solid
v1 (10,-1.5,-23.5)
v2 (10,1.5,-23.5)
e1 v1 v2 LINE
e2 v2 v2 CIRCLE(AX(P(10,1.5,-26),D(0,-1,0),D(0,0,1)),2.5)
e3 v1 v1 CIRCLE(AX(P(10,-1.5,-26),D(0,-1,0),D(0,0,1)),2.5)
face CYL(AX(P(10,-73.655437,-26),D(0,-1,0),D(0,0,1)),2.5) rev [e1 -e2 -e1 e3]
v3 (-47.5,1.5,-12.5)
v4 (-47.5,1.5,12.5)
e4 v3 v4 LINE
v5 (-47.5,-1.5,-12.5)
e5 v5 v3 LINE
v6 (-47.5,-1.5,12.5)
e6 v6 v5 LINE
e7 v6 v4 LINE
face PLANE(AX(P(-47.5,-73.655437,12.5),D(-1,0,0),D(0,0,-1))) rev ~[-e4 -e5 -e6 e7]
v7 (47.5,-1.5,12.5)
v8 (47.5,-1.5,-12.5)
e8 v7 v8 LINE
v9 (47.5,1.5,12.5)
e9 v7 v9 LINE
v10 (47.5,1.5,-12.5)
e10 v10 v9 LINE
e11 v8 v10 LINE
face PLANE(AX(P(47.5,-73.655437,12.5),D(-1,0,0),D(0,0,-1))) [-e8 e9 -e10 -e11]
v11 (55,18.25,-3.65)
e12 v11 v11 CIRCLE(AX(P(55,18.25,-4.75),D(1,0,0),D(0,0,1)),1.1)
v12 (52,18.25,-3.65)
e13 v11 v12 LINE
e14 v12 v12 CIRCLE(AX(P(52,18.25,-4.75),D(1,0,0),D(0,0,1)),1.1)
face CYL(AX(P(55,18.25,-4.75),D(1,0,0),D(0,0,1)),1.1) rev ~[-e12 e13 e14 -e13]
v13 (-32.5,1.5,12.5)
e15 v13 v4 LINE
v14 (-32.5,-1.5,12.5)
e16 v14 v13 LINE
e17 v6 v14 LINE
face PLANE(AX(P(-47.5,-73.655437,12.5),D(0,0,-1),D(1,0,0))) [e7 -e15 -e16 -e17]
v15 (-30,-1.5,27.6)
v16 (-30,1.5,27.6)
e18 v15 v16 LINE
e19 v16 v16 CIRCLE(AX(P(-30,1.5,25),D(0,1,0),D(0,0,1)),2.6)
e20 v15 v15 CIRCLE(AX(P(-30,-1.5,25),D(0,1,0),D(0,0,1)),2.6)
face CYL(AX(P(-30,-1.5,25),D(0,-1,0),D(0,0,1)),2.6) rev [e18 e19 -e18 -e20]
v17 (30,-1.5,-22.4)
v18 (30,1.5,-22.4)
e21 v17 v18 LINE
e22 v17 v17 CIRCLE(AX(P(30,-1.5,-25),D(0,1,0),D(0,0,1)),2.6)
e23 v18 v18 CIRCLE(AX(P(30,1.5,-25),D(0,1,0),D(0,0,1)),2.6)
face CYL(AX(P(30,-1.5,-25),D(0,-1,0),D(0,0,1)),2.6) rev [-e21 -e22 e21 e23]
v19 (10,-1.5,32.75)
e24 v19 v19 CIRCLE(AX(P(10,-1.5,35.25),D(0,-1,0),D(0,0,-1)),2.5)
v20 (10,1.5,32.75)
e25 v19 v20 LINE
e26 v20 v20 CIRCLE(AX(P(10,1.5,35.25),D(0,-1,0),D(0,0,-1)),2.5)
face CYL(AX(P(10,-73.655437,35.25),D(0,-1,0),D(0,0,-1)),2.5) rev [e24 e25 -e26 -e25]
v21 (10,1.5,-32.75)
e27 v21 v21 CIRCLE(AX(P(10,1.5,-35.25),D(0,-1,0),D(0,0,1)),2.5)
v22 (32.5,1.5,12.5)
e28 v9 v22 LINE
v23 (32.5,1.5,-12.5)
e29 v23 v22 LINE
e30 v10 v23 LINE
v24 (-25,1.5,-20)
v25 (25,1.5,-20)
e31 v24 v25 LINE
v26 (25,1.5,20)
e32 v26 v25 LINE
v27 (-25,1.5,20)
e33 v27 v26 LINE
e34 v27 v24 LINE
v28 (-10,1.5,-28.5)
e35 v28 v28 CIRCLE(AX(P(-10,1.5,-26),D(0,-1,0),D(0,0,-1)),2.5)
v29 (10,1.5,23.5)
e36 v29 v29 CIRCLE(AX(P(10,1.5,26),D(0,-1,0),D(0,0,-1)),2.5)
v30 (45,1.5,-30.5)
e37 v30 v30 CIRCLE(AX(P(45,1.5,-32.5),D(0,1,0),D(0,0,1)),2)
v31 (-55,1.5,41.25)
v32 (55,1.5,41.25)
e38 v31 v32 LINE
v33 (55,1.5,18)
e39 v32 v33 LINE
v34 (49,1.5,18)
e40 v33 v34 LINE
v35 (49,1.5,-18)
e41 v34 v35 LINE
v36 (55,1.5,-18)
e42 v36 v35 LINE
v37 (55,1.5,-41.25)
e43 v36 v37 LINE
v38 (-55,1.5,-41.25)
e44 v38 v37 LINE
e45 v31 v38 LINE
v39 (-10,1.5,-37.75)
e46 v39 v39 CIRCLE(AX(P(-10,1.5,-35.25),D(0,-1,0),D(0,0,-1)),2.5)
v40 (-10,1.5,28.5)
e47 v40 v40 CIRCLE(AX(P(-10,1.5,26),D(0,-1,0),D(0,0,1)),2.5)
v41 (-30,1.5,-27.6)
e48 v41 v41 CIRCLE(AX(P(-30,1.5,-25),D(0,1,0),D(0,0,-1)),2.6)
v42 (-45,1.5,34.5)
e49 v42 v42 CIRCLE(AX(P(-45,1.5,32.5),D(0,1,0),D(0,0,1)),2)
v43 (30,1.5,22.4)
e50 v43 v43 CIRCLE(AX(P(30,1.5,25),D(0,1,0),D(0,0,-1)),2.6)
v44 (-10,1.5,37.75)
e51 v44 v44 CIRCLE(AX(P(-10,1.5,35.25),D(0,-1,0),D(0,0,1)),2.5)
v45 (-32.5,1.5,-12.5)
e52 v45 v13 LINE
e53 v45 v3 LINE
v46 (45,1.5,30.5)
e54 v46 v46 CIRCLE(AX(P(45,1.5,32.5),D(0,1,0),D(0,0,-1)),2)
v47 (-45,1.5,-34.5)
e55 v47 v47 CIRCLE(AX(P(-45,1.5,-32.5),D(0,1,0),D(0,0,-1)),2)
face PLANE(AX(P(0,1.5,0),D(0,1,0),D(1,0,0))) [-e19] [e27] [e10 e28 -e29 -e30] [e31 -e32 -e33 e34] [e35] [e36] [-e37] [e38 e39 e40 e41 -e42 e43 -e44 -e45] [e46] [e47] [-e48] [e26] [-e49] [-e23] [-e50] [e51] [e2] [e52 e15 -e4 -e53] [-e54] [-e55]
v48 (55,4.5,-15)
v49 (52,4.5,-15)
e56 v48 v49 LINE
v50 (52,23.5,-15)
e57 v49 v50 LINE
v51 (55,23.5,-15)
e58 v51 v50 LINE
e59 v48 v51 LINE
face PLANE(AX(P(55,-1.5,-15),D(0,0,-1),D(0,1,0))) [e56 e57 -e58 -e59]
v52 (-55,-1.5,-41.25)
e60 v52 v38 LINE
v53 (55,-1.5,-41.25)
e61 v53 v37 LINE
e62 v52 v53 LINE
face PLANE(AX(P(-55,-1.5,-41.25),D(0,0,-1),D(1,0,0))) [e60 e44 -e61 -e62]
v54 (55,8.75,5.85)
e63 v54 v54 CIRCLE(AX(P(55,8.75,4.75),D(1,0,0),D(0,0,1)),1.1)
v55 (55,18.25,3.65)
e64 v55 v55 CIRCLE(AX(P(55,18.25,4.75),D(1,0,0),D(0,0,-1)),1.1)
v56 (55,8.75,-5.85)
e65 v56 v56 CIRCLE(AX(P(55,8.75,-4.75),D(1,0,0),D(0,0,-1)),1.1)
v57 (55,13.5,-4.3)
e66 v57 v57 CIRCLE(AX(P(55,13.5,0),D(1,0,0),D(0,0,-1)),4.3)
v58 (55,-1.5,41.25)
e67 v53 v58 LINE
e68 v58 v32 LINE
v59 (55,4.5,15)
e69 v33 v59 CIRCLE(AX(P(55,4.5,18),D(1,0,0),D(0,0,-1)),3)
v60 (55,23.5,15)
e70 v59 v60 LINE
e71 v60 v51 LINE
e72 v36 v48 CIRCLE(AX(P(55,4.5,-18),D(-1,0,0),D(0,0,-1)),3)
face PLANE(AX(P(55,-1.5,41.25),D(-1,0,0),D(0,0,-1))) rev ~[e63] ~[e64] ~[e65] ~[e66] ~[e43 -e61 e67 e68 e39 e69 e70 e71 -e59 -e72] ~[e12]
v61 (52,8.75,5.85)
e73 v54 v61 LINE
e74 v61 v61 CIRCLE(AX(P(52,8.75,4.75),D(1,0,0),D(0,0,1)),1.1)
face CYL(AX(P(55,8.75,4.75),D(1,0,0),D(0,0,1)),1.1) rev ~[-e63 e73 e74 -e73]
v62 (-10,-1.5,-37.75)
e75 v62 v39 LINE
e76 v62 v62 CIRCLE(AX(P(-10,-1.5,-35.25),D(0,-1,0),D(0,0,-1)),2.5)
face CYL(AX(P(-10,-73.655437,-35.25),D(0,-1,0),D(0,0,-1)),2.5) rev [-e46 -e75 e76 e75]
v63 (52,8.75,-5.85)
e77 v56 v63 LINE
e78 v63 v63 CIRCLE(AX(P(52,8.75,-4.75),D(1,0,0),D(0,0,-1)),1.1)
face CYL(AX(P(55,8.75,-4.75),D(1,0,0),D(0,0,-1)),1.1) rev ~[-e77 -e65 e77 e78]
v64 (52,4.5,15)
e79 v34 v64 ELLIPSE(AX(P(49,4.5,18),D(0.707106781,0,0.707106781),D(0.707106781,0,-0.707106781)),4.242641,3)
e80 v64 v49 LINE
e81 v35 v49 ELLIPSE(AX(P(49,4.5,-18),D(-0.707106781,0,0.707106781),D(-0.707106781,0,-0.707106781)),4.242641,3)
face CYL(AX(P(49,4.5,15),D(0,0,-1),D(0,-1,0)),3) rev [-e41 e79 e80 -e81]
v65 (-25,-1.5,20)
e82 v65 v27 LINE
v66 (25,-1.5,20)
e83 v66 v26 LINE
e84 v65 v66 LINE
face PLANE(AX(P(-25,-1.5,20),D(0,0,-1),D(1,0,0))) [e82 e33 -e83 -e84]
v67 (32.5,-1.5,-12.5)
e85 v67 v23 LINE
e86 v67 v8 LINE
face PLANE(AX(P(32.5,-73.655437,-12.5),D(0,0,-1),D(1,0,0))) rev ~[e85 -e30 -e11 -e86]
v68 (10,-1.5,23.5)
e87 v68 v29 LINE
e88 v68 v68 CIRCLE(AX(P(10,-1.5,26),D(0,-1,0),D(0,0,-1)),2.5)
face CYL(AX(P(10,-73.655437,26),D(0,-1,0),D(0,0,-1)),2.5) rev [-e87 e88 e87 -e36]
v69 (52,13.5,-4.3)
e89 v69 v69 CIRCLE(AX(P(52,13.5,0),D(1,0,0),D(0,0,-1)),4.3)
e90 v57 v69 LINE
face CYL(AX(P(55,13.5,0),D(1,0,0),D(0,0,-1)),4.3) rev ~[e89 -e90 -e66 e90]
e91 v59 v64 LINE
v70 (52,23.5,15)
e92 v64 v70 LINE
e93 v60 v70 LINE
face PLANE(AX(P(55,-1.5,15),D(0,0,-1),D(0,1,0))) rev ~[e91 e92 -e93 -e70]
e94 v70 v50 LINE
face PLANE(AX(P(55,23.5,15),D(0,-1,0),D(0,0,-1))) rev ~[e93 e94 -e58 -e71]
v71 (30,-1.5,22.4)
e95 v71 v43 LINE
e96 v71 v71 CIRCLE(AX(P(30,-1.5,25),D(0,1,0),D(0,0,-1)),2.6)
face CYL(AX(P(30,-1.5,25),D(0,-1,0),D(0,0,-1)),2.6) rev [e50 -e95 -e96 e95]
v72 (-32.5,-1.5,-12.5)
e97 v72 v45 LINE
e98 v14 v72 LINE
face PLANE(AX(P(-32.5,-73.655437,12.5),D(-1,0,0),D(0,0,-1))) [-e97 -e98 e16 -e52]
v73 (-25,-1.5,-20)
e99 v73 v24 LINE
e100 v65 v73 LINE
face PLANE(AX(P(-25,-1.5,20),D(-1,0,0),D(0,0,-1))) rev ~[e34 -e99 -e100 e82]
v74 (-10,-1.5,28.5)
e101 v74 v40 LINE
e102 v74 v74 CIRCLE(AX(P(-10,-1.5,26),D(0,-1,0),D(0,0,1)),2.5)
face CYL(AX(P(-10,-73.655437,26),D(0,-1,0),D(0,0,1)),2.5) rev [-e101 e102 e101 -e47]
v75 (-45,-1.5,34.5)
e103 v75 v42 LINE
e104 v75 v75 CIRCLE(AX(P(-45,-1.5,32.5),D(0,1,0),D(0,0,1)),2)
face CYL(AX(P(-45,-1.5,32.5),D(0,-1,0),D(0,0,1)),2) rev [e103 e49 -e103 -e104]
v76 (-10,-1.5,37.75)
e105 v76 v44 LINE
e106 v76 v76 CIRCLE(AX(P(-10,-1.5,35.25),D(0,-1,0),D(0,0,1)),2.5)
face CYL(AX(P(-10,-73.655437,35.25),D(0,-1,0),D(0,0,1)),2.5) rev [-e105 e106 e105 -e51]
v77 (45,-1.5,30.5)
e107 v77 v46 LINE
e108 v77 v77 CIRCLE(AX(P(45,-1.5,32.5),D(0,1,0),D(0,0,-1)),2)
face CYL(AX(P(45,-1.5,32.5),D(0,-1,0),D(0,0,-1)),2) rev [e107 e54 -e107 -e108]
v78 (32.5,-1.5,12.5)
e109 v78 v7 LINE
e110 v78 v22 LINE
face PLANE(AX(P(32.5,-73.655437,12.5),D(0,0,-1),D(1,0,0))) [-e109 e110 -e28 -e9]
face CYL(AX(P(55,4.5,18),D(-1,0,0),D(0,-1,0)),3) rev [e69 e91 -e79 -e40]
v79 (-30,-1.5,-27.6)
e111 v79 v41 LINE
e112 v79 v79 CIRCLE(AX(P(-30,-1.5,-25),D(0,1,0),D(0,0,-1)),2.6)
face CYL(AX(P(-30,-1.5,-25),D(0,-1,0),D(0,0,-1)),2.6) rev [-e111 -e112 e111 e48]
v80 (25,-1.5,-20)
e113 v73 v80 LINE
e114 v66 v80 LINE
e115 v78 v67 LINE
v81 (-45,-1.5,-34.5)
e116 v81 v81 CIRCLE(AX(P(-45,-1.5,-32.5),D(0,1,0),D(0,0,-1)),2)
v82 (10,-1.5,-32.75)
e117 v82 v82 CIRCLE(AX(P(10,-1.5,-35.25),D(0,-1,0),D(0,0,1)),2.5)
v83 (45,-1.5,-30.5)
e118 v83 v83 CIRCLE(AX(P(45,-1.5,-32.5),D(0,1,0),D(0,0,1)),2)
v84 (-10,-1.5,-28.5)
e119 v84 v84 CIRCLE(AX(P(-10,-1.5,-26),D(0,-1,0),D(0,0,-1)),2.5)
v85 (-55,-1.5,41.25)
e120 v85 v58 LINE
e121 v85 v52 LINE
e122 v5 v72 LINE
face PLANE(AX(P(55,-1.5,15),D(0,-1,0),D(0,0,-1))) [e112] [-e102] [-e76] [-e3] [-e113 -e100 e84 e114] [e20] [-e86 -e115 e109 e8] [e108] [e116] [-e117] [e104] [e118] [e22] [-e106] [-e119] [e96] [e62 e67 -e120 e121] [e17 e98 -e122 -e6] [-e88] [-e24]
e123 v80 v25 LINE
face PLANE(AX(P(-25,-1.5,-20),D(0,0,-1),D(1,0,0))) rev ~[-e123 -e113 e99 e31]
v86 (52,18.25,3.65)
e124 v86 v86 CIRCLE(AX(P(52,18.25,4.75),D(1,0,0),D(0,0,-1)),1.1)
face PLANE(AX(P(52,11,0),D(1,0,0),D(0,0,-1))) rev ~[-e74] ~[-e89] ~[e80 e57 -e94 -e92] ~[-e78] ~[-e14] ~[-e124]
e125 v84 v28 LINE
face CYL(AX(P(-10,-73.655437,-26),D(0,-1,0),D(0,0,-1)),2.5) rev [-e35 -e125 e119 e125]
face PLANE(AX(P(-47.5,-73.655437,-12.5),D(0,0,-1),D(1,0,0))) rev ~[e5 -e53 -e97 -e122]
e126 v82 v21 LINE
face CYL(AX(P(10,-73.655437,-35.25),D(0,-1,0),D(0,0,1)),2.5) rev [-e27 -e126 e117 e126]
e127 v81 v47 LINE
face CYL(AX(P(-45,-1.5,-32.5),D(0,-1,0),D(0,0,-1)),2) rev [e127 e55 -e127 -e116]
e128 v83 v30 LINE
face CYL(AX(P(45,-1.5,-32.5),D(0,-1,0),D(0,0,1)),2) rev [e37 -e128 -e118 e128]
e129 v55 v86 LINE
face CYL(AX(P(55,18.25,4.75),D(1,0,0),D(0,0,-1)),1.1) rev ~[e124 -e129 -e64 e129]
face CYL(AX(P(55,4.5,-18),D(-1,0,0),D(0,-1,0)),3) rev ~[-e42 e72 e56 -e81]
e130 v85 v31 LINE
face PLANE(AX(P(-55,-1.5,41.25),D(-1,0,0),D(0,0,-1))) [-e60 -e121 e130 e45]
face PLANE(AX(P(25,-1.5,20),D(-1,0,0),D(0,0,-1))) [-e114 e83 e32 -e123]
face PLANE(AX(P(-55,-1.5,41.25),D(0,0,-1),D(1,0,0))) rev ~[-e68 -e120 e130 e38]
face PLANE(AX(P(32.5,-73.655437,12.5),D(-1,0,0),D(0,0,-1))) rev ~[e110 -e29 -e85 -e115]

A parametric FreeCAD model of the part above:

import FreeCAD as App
import Part
import Sketcher
Q = App.Units.Quantity


def edges_at(feature, points):
    """Names of the edges that pass closest to the given points."""
    edges = feature.Shape.Edges
    near = lambda p: min(range(len(edges)), key=lambda i: edges[i].distToShape(Part.Vertex(*p))[0])
    return sorted({f"Edge{near(p) + 1}" for p in points})


def add_polygon(sketch, points):
    """Adds a closed chain of lines whose ends are joined by coincident constraints."""
    first, n = sketch.GeometryCount, len(points)
    for a, b in zip(points, points[1:] + points[:1]):
        sketch.addGeometry(Part.LineSegment(App.Vector(*a, 0), App.Vector(*b, 0)), False)
    for i in range(n):
        sketch.addConstraint(Sketcher.Constraint("Coincident", first + i, 2, first + (i + 1) % n, 1))

doc = App.newDocument("Part")
body = doc.addObject("PartDesign::Body", "Body")

# Sketch on XZ plane
sketch1 = body.newObject("Sketcher::SketchObject", "Sketch")
sketch1.AttachmentSupport = (doc.getObject("XZ_Plane"), [""])
sketch1.MapMode = "FlatFace"
add_polygon(sketch1, [(-55, -41.2), (-55, 41.2), (55, 41.2), (55, -41.2)])  # lines 0-3
sketch1.addGeometry(Part.Circle(App.Vector(-45, 32.5, 0), App.Vector(0, 0, 1), 2), False)  # 4
sketch1.addGeometry(Part.Circle(App.Vector(-30, 25, 0), App.Vector(0, 0, 1), 2.6), False)  # 5
sketch1.addGeometry(Part.Circle(App.Vector(45, 32.5, 0), App.Vector(0, 0, 1), 2), False)  # 6
sketch1.addGeometry(Part.Circle(App.Vector(30, 25, 0), App.Vector(0, 0, 1), 2.6), False)  # 7
sketch1.addGeometry(Part.Circle(App.Vector(-30, -25, 0), App.Vector(0, 0, 1), 2.6), False)  # 8
sketch1.addGeometry(Part.Circle(App.Vector(-45, -32.5, 0), App.Vector(0, 0, 1), 2), False)  # 9
add_polygon(sketch1, [(25, 20), (-25, 20), (-25, -20), (25, -20)])  # lines 10-13
sketch1.addGeometry(Part.Circle(App.Vector(30, -25, 0), App.Vector(0, 0, 1), 2.6), False)  # 14
sketch1.addGeometry(Part.Circle(App.Vector(45, -32.5, 0), App.Vector(0, 0, 1), 2), False)  # 15
sketch1.addConstraint(Sketcher.Constraint("Vertical", 0))
sketch1.addConstraint(Sketcher.Constraint("Horizontal", 1))
sketch1.addConstraint(Sketcher.Constraint("Vertical", 2))
sketch1.addConstraint(Sketcher.Constraint("Horizontal", 3))
sketch1.addConstraint(Sketcher.Constraint("Horizontal", 10))
sketch1.addConstraint(Sketcher.Constraint("Vertical", 11))
sketch1.addConstraint(Sketcher.Constraint("Horizontal", 12))
sketch1.addConstraint(Sketcher.Constraint("Vertical", 13))
sketch1.addConstraint(Sketcher.Constraint("Equal", 4, 6))
sketch1.addConstraint(Sketcher.Constraint("Equal", 5, 7))
sketch1.addConstraint(Sketcher.Constraint("Equal", 7, 8))
sketch1.addConstraint(Sketcher.Constraint("Equal", 6, 9))
sketch1.addConstraint(Sketcher.Constraint("Equal", 8, 14))
sketch1.addConstraint(Sketcher.Constraint("Equal", 9, 15))
sketch1.addConstraint(Sketcher.Constraint("Symmetric", 7, 3, 8, 3, -1, 1))
sketch1.addConstraint(Sketcher.Constraint("Symmetric", 6, 3, 9, 3, -1, 1))
sketch1.addConstraint(Sketcher.Constraint("Symmetric", 5, 3, 14, 3, -1, 1))
sketch1.addConstraint(Sketcher.Constraint("Symmetric", 4, 3, 15, 3, -1, 1))
sketch1.addConstraint(Sketcher.Constraint("Symmetric", 0, 2, 2, 2, -1, 1))
sketch1.addConstraint(Sketcher.Constraint("Symmetric", 10, 2, 12, 2, -1, 1))
sketch1.addConstraint(Sketcher.Constraint("Symmetric", 4, 3, 6, 3, -2))
sketch1.addConstraint(Sketcher.Constraint("Symmetric", 5, 3, 7, 3, -2))
sketch1.addConstraint(Sketcher.Constraint("Diameter", 4, Q("4 mm")))
sketch1.addConstraint(Sketcher.Constraint("Diameter", 5, Q("5.2 mm")))
sketch1.addConstraint(Sketcher.Constraint("DistanceX", 1, 1, 1, 2, Q("110 mm")))
sketch1.addConstraint(Sketcher.Constraint("DistanceX", 10, 2, 10, 1, Q("50 mm")))
sketch1.addConstraint(Sketcher.Constraint("DistanceY", 11, 2, 11, 1, Q("40 mm")))
sketch1.addConstraint(Sketcher.Constraint("DistanceY", 0, 1, 0, 2, Q("82.5 mm")))
sketch1.addConstraint(Sketcher.Constraint("DistanceX", 4, 3, -1, 1, Q("45 mm")))
sketch1.addConstraint(Sketcher.Constraint("DistanceX", 5, 3, -1, 1, Q("30 mm")))
sketch1.addConstraint(Sketcher.Constraint("DistanceY", -1, 1, 5, 3, Q("25 mm")))
sketch1.addConstraint(Sketcher.Constraint("DistanceY", 9, 3, 4, 3, Q("65 mm")))
pad1 = body.newObject("PartDesign::Pad", "Pad")
pad1.Profile = sketch1
pad1.Type = "TwoLengths"
pad1.Length = 1.5
pad1.Length2 = 1.5
pad1.Reversed = True

# Sketch on YZ plane
sketch2 = body.newObject("Sketcher::SketchObject", "Sketch001")
sketch2.AttachmentSupport = (doc.getObject("YZ_Plane"), [""])
sketch2.MapMode = "FlatFace"
sketch2.AttachmentOffset = App.Placement(App.Vector(0, 0, 55), App.Rotation())
add_polygon(sketch2, [(23.5, 15), (-1.5, 15), (-1.5, -15), (23.5, -15)])  # lines 0-3
sketch2.addGeometry(Part.Circle(App.Vector(8.8, 4.8, 0), App.Vector(0, 0, 1), 1.1), False)  # 4
sketch2.addGeometry(Part.Circle(App.Vector(8.8, -4.8, 0), App.Vector(0, 0, 1), 1.1), False)  # 5
sketch2.addGeometry(Part.Circle(App.Vector(18.2, 4.8, 0), App.Vector(0, 0, 1), 1.1), False)  # 6
sketch2.addGeometry(Part.Circle(App.Vector(13.5, 0, 0), App.Vector(0, 0, 1), 4.3), False)  # 7
sketch2.addGeometry(Part.Circle(App.Vector(18.2, -4.8, 0), App.Vector(0, 0, 1), 1.1), False)  # 8
sketch2.addConstraint(Sketcher.Constraint("Horizontal", 0))
sketch2.addConstraint(Sketcher.Constraint("Vertical", 1))
sketch2.addConstraint(Sketcher.Constraint("Horizontal", 2))
sketch2.addConstraint(Sketcher.Constraint("Vertical", 3))
sketch2.addConstraint(Sketcher.Constraint("Equal", 4, 5))
sketch2.addConstraint(Sketcher.Constraint("Equal", 5, 6))
sketch2.addConstraint(Sketcher.Constraint("Equal", 6, 8))
sketch2.addConstraint(Sketcher.Constraint("Symmetric", 4, 3, 5, 3, -1))
sketch2.addConstraint(Sketcher.Constraint("Symmetric", 6, 3, 8, 3, -1))
sketch2.addConstraint(Sketcher.Constraint("PointOnObject", 7, 3, -1))
sketch2.addConstraint(Sketcher.Constraint("Horizontal", 4, 3, 6, 3))
sketch2.addConstraint(Sketcher.Constraint("Diameter", 4, Q("2.2 mm")))
sketch2.addConstraint(Sketcher.Constraint("Diameter", 7, Q("8.6 mm")))
sketch2.addConstraint(Sketcher.Constraint("DistanceX", 0, 2, 0, 1, Q("25 mm")))
sketch2.addConstraint(Sketcher.Constraint("DistanceY", 1, 2, 1, 1, Q("30 mm")))
sketch2.addConstraint(Sketcher.Constraint("DistanceY", -1, 1, 0, 2, Q("15 mm")))
sketch2.addConstraint(Sketcher.Constraint("DistanceX", 0, 2, 7, 3, Q("15 mm")))
sketch2.addConstraint(Sketcher.Constraint("DistanceX", -1, 1, 7, 3, Q("13.5 mm")))
sketch2.addConstraint(Sketcher.Constraint("DistanceY", 5, 3, 4, 3, Q("9.5 mm")))
sketch2.addConstraint(Sketcher.Constraint("DistanceX", 4, 3, 6, 3, Q("9.5 mm")))
sketch2.addConstraint(Sketcher.Constraint("DistanceX", -1, 1, 4, 3, Q("8.75 mm")))
pad2 = body.newObject("PartDesign::Pad", "Pad001")
pad2.Profile = sketch2
pad2.Length = 3
pad2.Reversed = True
doc.recompute()

fillet = body.newObject("PartDesign::Fillet", "Fillet")
fillet.Base = (pad2, edges_at(pad2, [(52, 1.5, 0), (53.5, 1.5, -15), (53.5, 1.5, 15)]))
fillet.Radius = 3

# Sketch on XZ plane
sketch3 = body.newObject("Sketcher::SketchObject", "Sketch002")
sketch3.AttachmentSupport = (doc.getObject("XZ_Plane"), [""])
sketch3.MapMode = "FlatFace"
sketch3.addGeometry(Part.Circle(App.Vector(-10, 35.2, 0), App.Vector(0, 0, 1), 2.5), False)  # 0
sketch3.addGeometry(Part.Circle(App.Vector(-10, 26, 0), App.Vector(0, 0, 1), 2.5), False)  # 1
sketch3.addGeometry(Part.Circle(App.Vector(10, 26, 0), App.Vector(0, 0, 1), 2.5), False)  # 2
sketch3.addGeometry(Part.Circle(App.Vector(10, 35.2, 0), App.Vector(0, 0, 1), 2.5), False)  # 3
sketch3.addGeometry(Part.Circle(App.Vector(-10, -35.2, 0), App.Vector(0, 0, 1), 2.5), False)  # 4
sketch3.addGeometry(Part.Circle(App.Vector(-10, -26, 0), App.Vector(0, 0, 1), 2.5), False)  # 5
sketch3.addGeometry(Part.Circle(App.Vector(10, -26, 0), App.Vector(0, 0, 1), 2.5), False)  # 6
sketch3.addGeometry(Part.Circle(App.Vector(10, -35.2, 0), App.Vector(0, 0, 1), 2.5), False)  # 7
add_polygon(sketch3, [(32.5, -12.5), (32.5, 12.5), (47.5, 12.5), (47.5, -12.5)])  # lines 8-11
add_polygon(sketch3, [(-47.5, -12.5), (-47.5, 12.5), (-32.5, 12.5), (-32.5, -12.5)])  # lines 12-15
sketch3.addConstraint(Sketcher.Constraint("Vertical", 8))
sketch3.addConstraint(Sketcher.Constraint("Horizontal", 9))
sketch3.addConstraint(Sketcher.Constraint("Vertical", 10))
sketch3.addConstraint(Sketcher.Constraint("Horizontal", 11))
sketch3.addConstraint(Sketcher.Constraint("Vertical", 12))
sketch3.addConstraint(Sketcher.Constraint("Horizontal", 13))
sketch3.addConstraint(Sketcher.Constraint("Vertical", 14))
sketch3.addConstraint(Sketcher.Constraint("Horizontal", 15))
sketch3.addConstraint(Sketcher.Constraint("Equal", 0, 1))
sketch3.addConstraint(Sketcher.Constraint("Equal", 1, 2))
sketch3.addConstraint(Sketcher.Constraint("Equal", 2, 3))
sketch3.addConstraint(Sketcher.Constraint("Equal", 3, 4))
sketch3.addConstraint(Sketcher.Constraint("Equal", 4, 5))
sketch3.addConstraint(Sketcher.Constraint("Equal", 5, 6))
sketch3.addConstraint(Sketcher.Constraint("Equal", 6, 7))
sketch3.addConstraint(Sketcher.Constraint("Symmetric", 3, 3, 4, 3, -1, 1))
sketch3.addConstraint(Sketcher.Constraint("Symmetric", 2, 3, 5, 3, -1, 1))
sketch3.addConstraint(Sketcher.Constraint("Symmetric", 1, 3, 6, 3, -1, 1))
sketch3.addConstraint(Sketcher.Constraint("Symmetric", 0, 3, 7, 3, -1, 1))
sketch3.addConstraint(Sketcher.Constraint("Symmetric", 10, 2, 12, 2, -1, 1))
sketch3.addConstraint(Sketcher.Constraint("Symmetric", 8, 2, 14, 2, -1, 1))
sketch3.addConstraint(Sketcher.Constraint("Symmetric", 1, 3, 2, 3, -2))
sketch3.addConstraint(Sketcher.Constraint("Symmetric", 0, 3, 3, 3, -2))
sketch3.addConstraint(Sketcher.Constraint("Horizontal", 9, 2, 12, 2))
sketch3.addConstraint(Sketcher.Constraint("Vertical", 0, 3, 1, 3))
sketch3.addConstraint(Sketcher.Constraint("Diameter", 0, Q("5 mm")))
sketch3.addConstraint(Sketcher.Constraint("DistanceX", 9, 1, 9, 2, Q("15 mm")))
sketch3.addConstraint(Sketcher.Constraint("DistanceY", 8, 1, 8, 2, Q("25 mm")))
sketch3.addConstraint(Sketcher.Constraint("DistanceX", 0, 3, -1, 1, Q("10 mm")))
sketch3.addConstraint(Sketcher.Constraint("DistanceY", -1, 1, 1, 3, Q("26 mm")))
sketch3.addConstraint(Sketcher.Constraint("DistanceX", -1, 1, 8, 2, Q("32.5 mm")))
sketch3.addConstraint(Sketcher.Constraint("DistanceY", 4, 3, 0, 3, Q("70.5 mm")))
pocket1 = body.newObject("PartDesign::Pocket", "Pocket")
pocket1.Profile = sketch3
pocket1.Type = "ThroughAll"
pocket1.Midplane = True

doc.recompute()
